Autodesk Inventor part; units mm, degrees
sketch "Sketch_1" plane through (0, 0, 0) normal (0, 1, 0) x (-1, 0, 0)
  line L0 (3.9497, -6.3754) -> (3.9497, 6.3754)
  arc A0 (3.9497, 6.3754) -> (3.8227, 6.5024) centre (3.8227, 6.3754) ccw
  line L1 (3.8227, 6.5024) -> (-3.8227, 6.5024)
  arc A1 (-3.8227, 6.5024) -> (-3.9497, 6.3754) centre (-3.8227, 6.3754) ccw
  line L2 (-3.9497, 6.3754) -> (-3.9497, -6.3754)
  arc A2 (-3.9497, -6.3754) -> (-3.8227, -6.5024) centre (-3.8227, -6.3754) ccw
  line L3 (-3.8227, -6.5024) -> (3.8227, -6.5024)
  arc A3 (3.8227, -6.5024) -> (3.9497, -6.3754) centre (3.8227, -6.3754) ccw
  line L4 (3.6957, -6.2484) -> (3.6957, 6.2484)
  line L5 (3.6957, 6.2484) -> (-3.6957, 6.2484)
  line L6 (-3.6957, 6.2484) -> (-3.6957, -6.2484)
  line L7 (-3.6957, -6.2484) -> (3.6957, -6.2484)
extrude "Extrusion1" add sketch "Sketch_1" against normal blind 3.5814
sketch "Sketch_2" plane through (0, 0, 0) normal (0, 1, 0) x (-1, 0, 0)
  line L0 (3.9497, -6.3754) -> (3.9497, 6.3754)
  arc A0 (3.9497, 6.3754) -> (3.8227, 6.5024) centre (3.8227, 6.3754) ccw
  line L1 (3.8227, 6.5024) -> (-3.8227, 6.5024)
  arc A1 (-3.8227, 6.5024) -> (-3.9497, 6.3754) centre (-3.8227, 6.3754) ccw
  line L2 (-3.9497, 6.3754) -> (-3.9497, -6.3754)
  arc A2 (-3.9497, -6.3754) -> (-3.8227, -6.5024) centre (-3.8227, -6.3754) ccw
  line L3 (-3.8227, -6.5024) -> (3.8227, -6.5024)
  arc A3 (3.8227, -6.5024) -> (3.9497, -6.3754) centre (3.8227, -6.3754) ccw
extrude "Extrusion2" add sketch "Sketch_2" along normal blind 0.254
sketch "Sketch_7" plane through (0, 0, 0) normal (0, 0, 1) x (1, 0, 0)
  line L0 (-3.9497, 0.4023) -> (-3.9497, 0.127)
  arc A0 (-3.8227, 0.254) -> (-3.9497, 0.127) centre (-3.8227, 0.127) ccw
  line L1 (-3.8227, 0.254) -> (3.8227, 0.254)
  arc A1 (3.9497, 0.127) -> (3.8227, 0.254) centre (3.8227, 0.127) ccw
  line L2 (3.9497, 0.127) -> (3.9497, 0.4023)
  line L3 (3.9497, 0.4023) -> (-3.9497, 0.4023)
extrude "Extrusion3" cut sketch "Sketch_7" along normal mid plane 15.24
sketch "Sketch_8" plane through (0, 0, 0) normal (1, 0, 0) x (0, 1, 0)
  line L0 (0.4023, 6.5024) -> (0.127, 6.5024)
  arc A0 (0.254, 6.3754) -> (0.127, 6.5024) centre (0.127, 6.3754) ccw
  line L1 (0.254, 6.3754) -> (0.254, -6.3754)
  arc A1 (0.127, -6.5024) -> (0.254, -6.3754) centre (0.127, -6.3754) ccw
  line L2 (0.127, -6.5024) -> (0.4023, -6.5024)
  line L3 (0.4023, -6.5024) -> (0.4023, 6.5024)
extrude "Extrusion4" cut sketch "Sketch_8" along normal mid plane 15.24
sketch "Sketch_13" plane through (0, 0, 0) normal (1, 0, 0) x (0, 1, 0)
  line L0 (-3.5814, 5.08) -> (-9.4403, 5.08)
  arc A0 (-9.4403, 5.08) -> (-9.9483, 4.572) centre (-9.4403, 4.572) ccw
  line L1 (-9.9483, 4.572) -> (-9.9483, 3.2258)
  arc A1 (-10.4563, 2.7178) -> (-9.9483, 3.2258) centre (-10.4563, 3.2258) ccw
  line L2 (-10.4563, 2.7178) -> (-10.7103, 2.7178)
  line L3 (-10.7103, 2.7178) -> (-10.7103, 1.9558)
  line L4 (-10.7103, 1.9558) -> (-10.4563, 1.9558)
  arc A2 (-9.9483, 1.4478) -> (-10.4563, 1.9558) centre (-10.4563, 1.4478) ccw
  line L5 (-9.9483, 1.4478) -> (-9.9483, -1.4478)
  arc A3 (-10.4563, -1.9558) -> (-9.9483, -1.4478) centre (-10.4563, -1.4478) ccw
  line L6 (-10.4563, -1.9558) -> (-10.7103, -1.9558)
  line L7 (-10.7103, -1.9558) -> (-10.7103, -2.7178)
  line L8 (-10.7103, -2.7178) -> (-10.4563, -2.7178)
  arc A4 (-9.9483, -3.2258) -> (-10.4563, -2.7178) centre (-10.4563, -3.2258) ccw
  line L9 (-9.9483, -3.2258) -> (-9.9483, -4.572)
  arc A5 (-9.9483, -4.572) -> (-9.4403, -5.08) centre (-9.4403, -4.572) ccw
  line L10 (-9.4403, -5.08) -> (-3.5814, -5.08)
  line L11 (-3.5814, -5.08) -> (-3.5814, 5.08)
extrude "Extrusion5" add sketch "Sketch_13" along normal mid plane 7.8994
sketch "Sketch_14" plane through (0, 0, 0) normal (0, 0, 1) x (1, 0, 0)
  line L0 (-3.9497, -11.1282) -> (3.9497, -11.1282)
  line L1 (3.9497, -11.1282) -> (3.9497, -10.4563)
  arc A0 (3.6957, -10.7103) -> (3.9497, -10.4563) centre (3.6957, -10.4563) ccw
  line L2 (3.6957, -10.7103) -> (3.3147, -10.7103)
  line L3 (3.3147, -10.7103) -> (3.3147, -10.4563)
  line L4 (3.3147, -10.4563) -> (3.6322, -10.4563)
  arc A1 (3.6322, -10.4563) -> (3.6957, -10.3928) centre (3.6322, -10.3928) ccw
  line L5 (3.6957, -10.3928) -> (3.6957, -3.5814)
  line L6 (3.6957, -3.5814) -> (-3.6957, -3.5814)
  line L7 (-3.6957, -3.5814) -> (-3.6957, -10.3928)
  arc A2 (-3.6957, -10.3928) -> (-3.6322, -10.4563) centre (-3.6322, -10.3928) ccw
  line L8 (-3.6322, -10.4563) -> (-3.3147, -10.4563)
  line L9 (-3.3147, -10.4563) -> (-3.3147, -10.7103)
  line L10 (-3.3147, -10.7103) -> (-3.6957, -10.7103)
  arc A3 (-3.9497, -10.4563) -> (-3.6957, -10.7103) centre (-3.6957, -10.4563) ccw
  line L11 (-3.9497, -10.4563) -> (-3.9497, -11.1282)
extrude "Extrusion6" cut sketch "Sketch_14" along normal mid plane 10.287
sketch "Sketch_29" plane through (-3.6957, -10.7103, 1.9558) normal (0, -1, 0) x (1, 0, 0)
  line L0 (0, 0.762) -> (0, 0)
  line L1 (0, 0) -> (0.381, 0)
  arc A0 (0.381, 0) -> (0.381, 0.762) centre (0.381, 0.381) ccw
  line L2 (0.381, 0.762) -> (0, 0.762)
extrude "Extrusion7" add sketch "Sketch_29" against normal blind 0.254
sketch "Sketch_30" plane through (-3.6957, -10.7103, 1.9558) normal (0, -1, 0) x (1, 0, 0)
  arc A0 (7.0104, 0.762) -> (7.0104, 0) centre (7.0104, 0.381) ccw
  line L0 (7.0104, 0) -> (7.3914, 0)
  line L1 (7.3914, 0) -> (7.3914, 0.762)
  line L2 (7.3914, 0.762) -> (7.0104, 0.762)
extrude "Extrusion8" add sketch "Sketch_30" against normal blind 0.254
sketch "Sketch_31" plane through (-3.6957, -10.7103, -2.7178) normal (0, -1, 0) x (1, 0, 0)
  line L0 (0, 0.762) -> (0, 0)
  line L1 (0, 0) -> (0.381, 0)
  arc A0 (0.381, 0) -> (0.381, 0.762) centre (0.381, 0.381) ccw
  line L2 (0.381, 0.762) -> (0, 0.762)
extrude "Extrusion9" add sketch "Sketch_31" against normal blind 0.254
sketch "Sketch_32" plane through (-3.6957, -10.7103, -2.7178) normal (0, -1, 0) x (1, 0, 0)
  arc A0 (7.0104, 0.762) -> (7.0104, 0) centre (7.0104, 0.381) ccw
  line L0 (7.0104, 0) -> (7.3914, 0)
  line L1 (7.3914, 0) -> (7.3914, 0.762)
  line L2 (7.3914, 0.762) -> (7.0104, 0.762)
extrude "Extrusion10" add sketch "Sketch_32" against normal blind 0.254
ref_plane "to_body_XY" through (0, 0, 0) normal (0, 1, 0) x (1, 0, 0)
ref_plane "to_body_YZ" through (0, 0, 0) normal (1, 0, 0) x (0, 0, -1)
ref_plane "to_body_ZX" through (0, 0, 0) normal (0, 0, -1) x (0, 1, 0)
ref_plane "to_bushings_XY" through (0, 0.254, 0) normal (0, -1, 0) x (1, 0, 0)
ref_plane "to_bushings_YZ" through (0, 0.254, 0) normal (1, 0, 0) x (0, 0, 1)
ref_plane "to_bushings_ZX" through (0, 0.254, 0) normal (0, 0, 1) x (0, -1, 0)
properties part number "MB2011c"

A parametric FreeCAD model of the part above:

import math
import FreeCAD as App
import Part
import Sketcher
from FreeCAD import Vector
Q = App.Units.Quantity


def add_polygon(sketch, points):
    """Adds a closed chain of lines whose ends are joined by coincident constraints."""
    first, n = sketch.GeometryCount, len(points)
    for a, b in zip(points, points[1:] + points[:1]):
        sketch.addGeometry(Part.LineSegment(App.Vector(*a, 0), App.Vector(*b, 0)), False)
    for i in range(n):
        sketch.addConstraint(Sketcher.Constraint("Coincident", first + i, 2, first + (i + 1) % n, 1))

doc = App.newDocument("Part")
body = doc.addObject("PartDesign::Body", "Body")

# Sketch on XZ plane
sketch1 = body.newObject("Sketcher::SketchObject", "Sketch")
sketch1.AttachmentSupport = (doc.getObject("XZ_Plane"), [""])
sketch1.MapMode = "FlatFace"
sketch1.addGeometry(Part.ArcOfCircle(Part.Circle(Vector(-3.82, -6.38, 0), Vector(0, 0, 1), 0.13), math.radians(180), math.radians(270)), False)  # 0
sketch1.addGeometry(Part.LineSegment(Vector(-3.95, -6.38, 0), Vector(-3.95, 6.38, 0)), False)  # 1
sketch1.addGeometry(Part.ArcOfCircle(Part.Circle(Vector(-3.82, 6.38, 0), Vector(0, 0, 1), 0.13), math.radians(90), math.radians(180)), False)  # 2
sketch1.addGeometry(Part.LineSegment(Vector(-3.82, 6.5, 0), Vector(3.82, 6.5, 0)), False)  # 3
sketch1.addGeometry(Part.ArcOfCircle(Part.Circle(Vector(3.82, 6.38, 0), Vector(0, 0, 1), 0.13), math.radians(0), math.radians(90)), False)  # 4
sketch1.addGeometry(Part.LineSegment(Vector(3.95, 6.38, 0), Vector(3.95, -6.38, 0)), False)  # 5
sketch1.addGeometry(Part.ArcOfCircle(Part.Circle(Vector(3.82, -6.38, 0), Vector(0, 0, 1), 0.13), math.radians(-90), math.radians(0)), False)  # 6
sketch1.addGeometry(Part.LineSegment(Vector(3.82, -6.5, 0), Vector(-3.82, -6.5, 0)), False)  # 7
add_polygon(sketch1, [(-3.7, 6.25), (-3.7, -6.25), (3.7, -6.25), (3.7, 6.25)])  # lines 8-11
sketch1.addConstraint([
    Sketcher.Constraint("Tangent", 0, 1, 1, 1),
    Sketcher.Constraint("Tangent", 1, 2, 2, 2),
    Sketcher.Constraint("Tangent", 2, 1, 3, 1),
    Sketcher.Constraint("Tangent", 3, 2, 4, 2),
    Sketcher.Constraint("Tangent", 4, 1, 5, 1),
    Sketcher.Constraint("Tangent", 5, 2, 6, 2),
    Sketcher.Constraint("Tangent", 6, 1, 7, 1),
    Sketcher.Constraint("Tangent", 7, 2, 0, 2),
    Sketcher.Constraint("Vertical", 1),
    Sketcher.Constraint("Horizontal", 3),
    Sketcher.Constraint("Vertical", 5),
    Sketcher.Constraint("Horizontal", 7),
    Sketcher.Constraint("Vertical", 8),
    Sketcher.Constraint("Horizontal", 9),
    Sketcher.Constraint("Vertical", 10),
    Sketcher.Constraint("Horizontal", 11),
    Sketcher.Constraint("Equal", 0, 2),
    Sketcher.Constraint("Equal", 2, 4),
    Sketcher.Constraint("Equal", 4, 6),
    Sketcher.Constraint("Symmetric", 0, 3, 4, 3, -1, 1),
    Sketcher.Constraint("Symmetric", 8, 2, 10, 2, -1, 1),
    Sketcher.Constraint("Radius", 0, Q("0.005 in")),
    Sketcher.Constraint("DistanceX", 3, 1, 3, 2, Q("0.301 in")),
    Sketcher.Constraint("DistanceX", 9, 1, 9, 2, Q("0.291 in")),
    Sketcher.Constraint("DistanceY", 1, 1, 1, 2, Q("0.502 in")),
    Sketcher.Constraint("DistanceY", 8, 2, 8, 1, Q("0.492 in")),
])
pad1 = body.newObject("PartDesign::Pad", "Pad")
pad1.Profile = sketch1
pad1.Length = Q("0.141 in")

# Sketch on XZ plane
sketch2 = body.newObject("Sketcher::SketchObject", "Sketch001")
sketch2.AttachmentSupport = (doc.getObject("XZ_Plane"), [""])
sketch2.MapMode = "FlatFace"
sketch2.addGeometry([
    Part.ArcOfCircle(Part.Circle(Vector(-3.82, -6.38, 0), Vector(0, 0, 1), 0.13), math.radians(180), math.radians(270)),  # 0
    Part.LineSegment(Vector(-3.95, -6.38, 0), Vector(-3.95, 6.38, 0)),  # 1
    Part.ArcOfCircle(Part.Circle(Vector(-3.82, 6.38, 0), Vector(0, 0, 1), 0.13), math.radians(90), math.radians(180)),  # 2
    Part.LineSegment(Vector(-3.82, 6.5, 0), Vector(3.82, 6.5, 0)),  # 3
    Part.ArcOfCircle(Part.Circle(Vector(3.82, 6.38, 0), Vector(0, 0, 1), 0.13), math.radians(0), math.radians(90)),  # 4
    Part.LineSegment(Vector(3.95, 6.38, 0), Vector(3.95, -6.38, 0)),  # 5
    Part.ArcOfCircle(Part.Circle(Vector(3.82, -6.38, 0), Vector(0, 0, 1), 0.13), math.radians(-90), math.radians(0)),  # 6
    Part.LineSegment(Vector(3.82, -6.5, 0), Vector(-3.82, -6.5, 0)),  # 7
], False)
sketch2.addConstraint([
    Sketcher.Constraint("Tangent", 0, 1, 1, 1),
    Sketcher.Constraint("Tangent", 1, 2, 2, 2),
    Sketcher.Constraint("Tangent", 2, 1, 3, 1),
    Sketcher.Constraint("Tangent", 3, 2, 4, 2),
    Sketcher.Constraint("Tangent", 4, 1, 5, 1),
    Sketcher.Constraint("Tangent", 5, 2, 6, 2),
    Sketcher.Constraint("Tangent", 6, 1, 7, 1),
    Sketcher.Constraint("Tangent", 7, 2, 0, 2),
    Sketcher.Constraint("Vertical", 1),
    Sketcher.Constraint("Horizontal", 3),
    Sketcher.Constraint("Vertical", 5),
    Sketcher.Constraint("Horizontal", 7),
    Sketcher.Constraint("Equal", 0, 2),
    Sketcher.Constraint("Equal", 2, 4),
    Sketcher.Constraint("Equal", 4, 6),
    Sketcher.Constraint("Symmetric", 0, 3, 4, 3, -1, 1),
    Sketcher.Constraint("Radius", 0, Q("0.005 in")),
    Sketcher.Constraint("DistanceX", 3, 1, 3, 2, Q("0.301 in")),
    Sketcher.Constraint("DistanceY", 1, 1, 1, 2, Q("0.502 in")),
])
pad2 = body.newObject("PartDesign::Pad", "Pad001")
pad2.Profile = sketch2
pad2.Length = Q("0.01 in")
pad2.Reversed = True

# Sketch on XY plane
sketch3 = body.newObject("Sketcher::SketchObject", "Sketch002")
sketch3.AttachmentSupport = (doc.getObject("XY_Plane"), [""])
sketch3.MapMode = "FlatFace"
sketch3.addGeometry([
    Part.LineSegment(Vector(3.95, 0.4, 0), Vector(-3.95, 0.4, 0)),  # 0
    Part.LineSegment(Vector(-3.95, 0.4, 0), Vector(-3.95, 0.13, 0)),  # 1
    Part.ArcOfCircle(Part.Circle(Vector(-3.82, 0.13, 0), Vector(0, 0, 1), 0.13), math.radians(90), math.radians(180)),  # 2
    Part.LineSegment(Vector(-3.82, 0.25, 0), Vector(3.82, 0.25, 0)),  # 3
    Part.ArcOfCircle(Part.Circle(Vector(3.82, 0.13, 0), Vector(0, 0, 1), 0.13), math.radians(0), math.radians(90)),  # 4
    Part.LineSegment(Vector(3.95, 0.13, 0), Vector(3.95, 0.4, 0)),  # 5
], False)
sketch3.addConstraint([
    Sketcher.Constraint("Coincident", 0, 2, 1, 1),
    Sketcher.Constraint("Tangent", 1, 2, 2, 2),
    Sketcher.Constraint("Tangent", 2, 1, 3, 1),
    Sketcher.Constraint("Tangent", 3, 2, 4, 2),
    Sketcher.Constraint("Tangent", 4, 1, 5, 1),
    Sketcher.Constraint("Coincident", 5, 2, 0, 1),
    Sketcher.Constraint("Horizontal", 0),
    Sketcher.Constraint("Vertical", 1),
    Sketcher.Constraint("Horizontal", 3),
    Sketcher.Constraint("Vertical", 5),
    Sketcher.Constraint("Equal", 2, 4),
    Sketcher.Constraint("Radius", 2, Q("0.005 in")),
    Sketcher.Constraint("DistanceX", 0, 2, 0, 1, Q("0.311 in")),
    Sketcher.Constraint("DistanceY", -1, 1, 2, 1, Q("0.01 in")),
    Sketcher.Constraint("DistanceY", 1, 2, 1, 1, Q("0.2753 mm")),
    Sketcher.Constraint("DistanceX", 2, 3, -1, 1, Q("0.1505 in")),
])
pocket1 = body.newObject("PartDesign::Pocket", "Pocket")
pocket1.Profile = sketch3
pocket1.Length = Q("0.6 in")
pocket1.Midplane = True

# Sketch on YZ plane
sketch4 = body.newObject("Sketcher::SketchObject", "Sketch003")
sketch4.AttachmentSupport = (doc.getObject("YZ_Plane"), [""])
sketch4.MapMode = "FlatFace"
sketch4.addGeometry([
    Part.LineSegment(Vector(0.4, -6.5, 0), Vector(0.4, 6.5, 0)),  # 0
    Part.LineSegment(Vector(0.4, 6.5, 0), Vector(0.13, 6.5, 0)),  # 1
    Part.ArcOfCircle(Part.Circle(Vector(0.13, 6.38, 0), Vector(0, 0, 1), 0.13), math.radians(0), math.radians(90)),  # 2
    Part.LineSegment(Vector(0.25, 6.38, 0), Vector(0.25, -6.38, 0)),  # 3
    Part.ArcOfCircle(Part.Circle(Vector(0.13, -6.38, 0), Vector(0, 0, 1), 0.13), math.radians(-90), math.radians(0)),  # 4
    Part.LineSegment(Vector(0.13, -6.5, 0), Vector(0.4, -6.5, 0)),  # 5
], False)
sketch4.addConstraint([
    Sketcher.Constraint("Coincident", 0, 2, 1, 1),
    Sketcher.Constraint("Tangent", 1, 2, 2, 2),
    Sketcher.Constraint("Tangent", 2, 1, 3, 1),
    Sketcher.Constraint("Tangent", 3, 2, 4, 2),
    Sketcher.Constraint("Tangent", 4, 1, 5, 1),
    Sketcher.Constraint("Coincident", 5, 2, 0, 1),
    Sketcher.Constraint("Vertical", 0),
    Sketcher.Constraint("Horizontal", 1),
    Sketcher.Constraint("Vertical", 3),
    Sketcher.Constraint("Horizontal", 5),
    Sketcher.Constraint("Equal", 2, 4),
    Sketcher.Constraint("Radius", 2, Q("0.005 in")),
    Sketcher.Constraint("DistanceY", 0, 1, 0, 2, Q("0.512 in")),
    Sketcher.Constraint("DistanceX", -1, 1, 2, 1, Q("0.01 in")),
    Sketcher.Constraint("DistanceY", -1, 1, 2, 3, Q("0.251 in")),
    Sketcher.Constraint("DistanceX", 1, 2, 1, 1, Q("0.2753 mm")),
])
pocket2 = body.newObject("PartDesign::Pocket", "Pocket001")
pocket2.Profile = sketch4
pocket2.Length = Q("0.6 in")
pocket2.Midplane = True

# Sketch on YZ plane
sketch5 = body.newObject("Sketcher::SketchObject", "Sketch004")
sketch5.AttachmentSupport = (doc.getObject("YZ_Plane"), [""])
sketch5.MapMode = "FlatFace"
sketch5.addGeometry([
    Part.LineSegment(Vector(-3.58, -5.08, 0), Vector(-3.58, 5.08, 0)),  # 0
    Part.LineSegment(Vector(-3.58, 5.08, 0), Vector(-9.44, 5.08, 0)),  # 1
    Part.ArcOfCircle(Part.Circle(Vector(-9.44, 4.57, 0), Vector(0, 0, 1), 0.51), math.radians(90), math.radians(180)),  # 2
    Part.LineSegment(Vector(-9.95, 4.57, 0), Vector(-9.95, 3.23, 0)),  # 3
    Part.ArcOfCircle(Part.Circle(Vector(-10.46, 3.23, 0), Vector(0, 0, 1), 0.51), math.radians(-90), math.radians(0)),  # 4
    Part.LineSegment(Vector(-10.46, 2.72, 0), Vector(-10.71, 2.72, 0)),  # 5
    Part.LineSegment(Vector(-10.71, 2.72, 0), Vector(-10.71, 1.96, 0)),  # 6
    Part.LineSegment(Vector(-10.71, 1.96, 0), Vector(-10.46, 1.96, 0)),  # 7
    Part.ArcOfCircle(Part.Circle(Vector(-10.46, 1.45, 0), Vector(0, 0, 1), 0.51), math.radians(0), math.radians(90)),  # 8
    Part.LineSegment(Vector(-9.95, 1.45, 0), Vector(-9.95, -1.45, 0)),  # 9
    Part.ArcOfCircle(Part.Circle(Vector(-10.46, -1.45, 0), Vector(0, 0, 1), 0.51), math.radians(-90), math.radians(0)),  # 10
    Part.LineSegment(Vector(-10.46, -1.96, 0), Vector(-10.71, -1.96, 0)),  # 11
    Part.LineSegment(Vector(-10.71, -1.96, 0), Vector(-10.71, -2.72, 0)),  # 12
    Part.LineSegment(Vector(-10.71, -2.72, 0), Vector(-10.46, -2.72, 0)),  # 13
    Part.ArcOfCircle(Part.Circle(Vector(-10.46, -3.23, 0), Vector(0, 0, 1), 0.51), math.radians(0), math.radians(90)),  # 14
    Part.LineSegment(Vector(-9.95, -3.23, 0), Vector(-9.95, -4.57, 0)),  # 15
    Part.ArcOfCircle(Part.Circle(Vector(-9.44, -4.57, 0), Vector(0, 0, 1), 0.51), math.radians(180), math.radians(270)),  # 16
    Part.LineSegment(Vector(-9.44, -5.08, 0), Vector(-3.58, -5.08, 0)),  # 17
], False)
sketch5.addConstraint([
    Sketcher.Constraint("Coincident", 0, 2, 1, 1),
    Sketcher.Constraint("Tangent", 1, 2, 2, 1),
    Sketcher.Constraint("Tangent", 2, 2, 3, 1),
    Sketcher.Constraint("Tangent", 3, 2, 4, 2),
    Sketcher.Constraint("Tangent", 4, 1, 5, 1),
    Sketcher.Constraint("Coincident", 5, 2, 6, 1),
    Sketcher.Constraint("Coincident", 6, 2, 7, 1),
    Sketcher.Constraint("Tangent", 7, 2, 8, 2),
    Sketcher.Constraint("Tangent", 8, 1, 9, 1),
    Sketcher.Constraint("Tangent", 9, 2, 10, 2),
    Sketcher.Constraint("Tangent", 10, 1, 11, 1),
    Sketcher.Constraint("Coincident", 11, 2, 12, 1),
    Sketcher.Constraint("Coincident", 12, 2, 13, 1),
    Sketcher.Constraint("Tangent", 13, 2, 14, 2),
    Sketcher.Constraint("Tangent", 14, 1, 15, 1),
    Sketcher.Constraint("Tangent", 15, 2, 16, 1),
    Sketcher.Constraint("Tangent", 16, 2, 17, 1),
    Sketcher.Constraint("Coincident", 17, 2, 0, 1),
    Sketcher.Constraint("Vertical", 0),
    Sketcher.Constraint("Horizontal", 1),
    Sketcher.Constraint("Vertical", 3),
    Sketcher.Constraint("Horizontal", 5),
    Sketcher.Constraint("Vertical", 6),
    Sketcher.Constraint("Horizontal", 7),
    Sketcher.Constraint("Vertical", 9),
    Sketcher.Constraint("Horizontal", 11),
    Sketcher.Constraint("Vertical", 12),
    Sketcher.Constraint("Horizontal", 13),
    Sketcher.Constraint("Vertical", 15),
    Sketcher.Constraint("Horizontal", 17),
    Sketcher.Constraint("Equal", 2, 4),
    Sketcher.Constraint("Equal", 4, 8),
    Sketcher.Constraint("Equal", 8, 10),
    Sketcher.Constraint("Equal", 10, 14),
    Sketcher.Constraint("Equal", 14, 16),
    Sketcher.Constraint("Symmetric", 4, 3, 14, 3, -1),
    Sketcher.Constraint("Symmetric", 6, 2, 11, 2, -1),
    Sketcher.Constraint("Vertical", 4, 3, 8, 3),
    Sketcher.Constraint("Equal", 3, 15),
    Sketcher.Constraint("Radius", 2, Q("0.02 in")),
    Sketcher.Constraint("DistanceY", 0, 1, 0, 2, Q("0.4 in")),
    Sketcher.Constraint("DistanceX", 5, 2, 5, 1, Q("0.01 in")),
    Sketcher.Constraint("DistanceY", 6, 2, 6, 1, Q("0.03 in")),
    Sketcher.Constraint("DistanceY", 3, 2, 3, 1, Q("0.053 in")),
    Sketcher.Constraint("DistanceX", 0, 2, -1, 1, Q("0.141 in")),
    Sketcher.Constraint("DistanceX", 1, 2, 1, 1, Q("5.859 mm")),
])
pad3 = body.newObject("PartDesign::Pad", "Pad002")
pad3.Profile = sketch5
pad3.Length = Q("0.311 in")
pad3.Midplane = True

# Sketch on XY plane
sketch6 = body.newObject("Sketcher::SketchObject", "Sketch005")
sketch6.AttachmentSupport = (doc.getObject("XY_Plane"), [""])
sketch6.MapMode = "FlatFace"
sketch6.addGeometry([
    Part.LineSegment(Vector(-3.95, -10.46, 0), Vector(-3.95, -11.13, 0)),  # 0
    Part.LineSegment(Vector(-3.95, -11.13, 0), Vector(3.95, -11.13, 0)),  # 1
    Part.LineSegment(Vector(3.95, -11.13, 0), Vector(3.95, -10.46, 0)),  # 2
    Part.ArcOfCircle(Part.Circle(Vector(3.7, -10.46, 0), Vector(0, 0, 1), 0.25), math.radians(-90), math.radians(0)),  # 3
    Part.LineSegment(Vector(3.7, -10.71, 0), Vector(3.31, -10.71, 0)),  # 4
    Part.LineSegment(Vector(3.31, -10.71, 0), Vector(3.31, -10.46, 0)),  # 5
    Part.LineSegment(Vector(3.31, -10.46, 0), Vector(3.63, -10.46, 0)),  # 6
    Part.ArcOfCircle(Part.Circle(Vector(3.63, -10.39, 0), Vector(0, 0, 1), 0.06), math.radians(-90), math.radians(0)),  # 7
    Part.LineSegment(Vector(3.7, -10.39, 0), Vector(3.7, -3.58, 0)),  # 8
    Part.LineSegment(Vector(3.7, -3.58, 0), Vector(-3.7, -3.58, 0)),  # 9
    Part.LineSegment(Vector(-3.7, -3.58, 0), Vector(-3.7, -10.39, 0)),  # 10
    Part.ArcOfCircle(Part.Circle(Vector(-3.63, -10.39, 0), Vector(0, 0, 1), 0.06), math.radians(180), math.radians(270)),  # 11
    Part.LineSegment(Vector(-3.63, -10.46, 0), Vector(-3.31, -10.46, 0)),  # 12
    Part.LineSegment(Vector(-3.31, -10.46, 0), Vector(-3.31, -10.71, 0)),  # 13
    Part.LineSegment(Vector(-3.31, -10.71, 0), Vector(-3.7, -10.71, 0)),  # 14
    Part.ArcOfCircle(Part.Circle(Vector(-3.7, -10.46, 0), Vector(0, 0, 1), 0.25), math.radians(180), math.radians(270)),  # 15
], False)
sketch6.addConstraint([
    Sketcher.Constraint("Coincident", 0, 2, 1, 1),
    Sketcher.Constraint("Coincident", 1, 2, 2, 1),
    Sketcher.Constraint("Tangent", 2, 2, 3, 2),
    Sketcher.Constraint("Tangent", 3, 1, 4, 1),
    Sketcher.Constraint("Coincident", 4, 2, 5, 1),
    Sketcher.Constraint("Coincident", 5, 2, 6, 1),
    Sketcher.Constraint("Tangent", 6, 2, 7, 1),
    Sketcher.Constraint("Tangent", 7, 2, 8, 1),
    Sketcher.Constraint("Coincident", 8, 2, 9, 1),
    Sketcher.Constraint("Coincident", 9, 2, 10, 1),
    Sketcher.Constraint("Tangent", 10, 2, 11, 1),
    Sketcher.Constraint("Tangent", 11, 2, 12, 1),
    Sketcher.Constraint("Coincident", 12, 2, 13, 1),
    Sketcher.Constraint("Coincident", 13, 2, 14, 1),
    Sketcher.Constraint("Tangent", 14, 2, 15, 2),
    Sketcher.Constraint("Tangent", 15, 1, 0, 1),
    Sketcher.Constraint("Vertical", 0),
    Sketcher.Constraint("Horizontal", 1),
    Sketcher.Constraint("Vertical", 2),
    Sketcher.Constraint("Horizontal", 4),
    Sketcher.Constraint("Vertical", 5),
    Sketcher.Constraint("Horizontal", 6),
    Sketcher.Constraint("Vertical", 8),
    Sketcher.Constraint("Horizontal", 9),
    Sketcher.Constraint("Vertical", 10),
    Sketcher.Constraint("Horizontal", 12),
    Sketcher.Constraint("Vertical", 13),
    Sketcher.Constraint("Horizontal", 14),
    Sketcher.Constraint("Equal", 7, 11),
    Sketcher.Constraint("Equal", 3, 15),
    Sketcher.Constraint("Symmetric", 7, 3, 11, 3, -2),
    Sketcher.Constraint("Symmetric", 3, 3, 15, 3, -2),
    Sketcher.Constraint("Horizontal", 2, 2, 5, 2),
    Sketcher.Constraint("Vertical", 3, 1, 7, 2),
    Sketcher.Constraint("Equal", 6, 12),
    Sketcher.Constraint("Radius", 3, Q("0.01 in")),
    Sketcher.Constraint("Radius", 7, Q("0.0025 in")),
    Sketcher.Constraint("DistanceX", 1, 1, 1, 2, Q("0.311 in")),
    Sketcher.Constraint("DistanceX", 4, 2, 4, 1, Q("0.015 in")),
    Sketcher.Constraint("DistanceY", 8, 2, -1, 1, Q("0.141 in")),
    Sketcher.Constraint("DistanceY", 0, 2, 0, 1, Q("0.672 mm")),
    Sketcher.Constraint("DistanceY", 8, 1, 8, 2, Q("6.8114 mm")),
])
pocket3 = body.newObject("PartDesign::Pocket", "Pocket002")
pocket3.Profile = sketch6
pocket3.Length = Q("0.405 in")
pocket3.Midplane = True

# Sketch on XZ plane
sketch7 = body.newObject("Sketcher::SketchObject", "Sketch006")
sketch7.AttachmentSupport = (doc.getObject("XZ_Plane"), [""])
sketch7.MapMode = "FlatFace"
sketch7.AttachmentOffset = App.Placement(Vector(0, 0, 10.7103), App.Rotation())
sketch7.addGeometry([
    Part.LineSegment(Vector(-3.31, 2.72, 0), Vector(-3.7, 2.72, 0)),
    Part.LineSegment(Vector(-3.7, 2.72, 0), Vector(-3.7, 1.96, 0)),
    Part.LineSegment(Vector(-3.7, 1.96, 0), Vector(-3.31, 1.96, 0)),
    Part.ArcOfCircle(Part.Circle(Vector(-3.31, 2.34, 0), Vector(0, 0, 1), 0.38), math.radians(-90), math.radians(90)),
], False)
sketch7.addConstraint([
    Sketcher.Constraint("Coincident", 0, 2, 1, 1),
    Sketcher.Constraint("Coincident", 1, 2, 2, 1),
    Sketcher.Constraint("Tangent", 2, 2, 3, 1),
    Sketcher.Constraint("Tangent", 3, 2, 0, 1),
    Sketcher.Constraint("Horizontal", 0),
    Sketcher.Constraint("Vertical", 1),
    Sketcher.Constraint("Horizontal", 2),
    Sketcher.Constraint("Radius", 3, Q("0.015 in")),
    Sketcher.Constraint("DistanceX", 0, 2, 0, 1, Q("0.015 in")),
    Sketcher.Constraint("DistanceY", -1, 1, 3, 3, Q("0.092 in")),
    Sketcher.Constraint("DistanceX", 3, 3, -1, 1, Q("0.1305 in")),
])
pad4 = body.newObject("PartDesign::Pad", "Pad003")
pad4.Profile = sketch7
pad4.Length = Q("0.01 in")
pad4.Reversed = True

# Sketch on XZ plane
sketch8 = body.newObject("Sketcher::SketchObject", "Sketch007")
sketch8.AttachmentSupport = (doc.getObject("XZ_Plane"), [""])
sketch8.MapMode = "FlatFace"
sketch8.AttachmentOffset = App.Placement(Vector(0, 0, 10.7103), App.Rotation())
sketch8.addGeometry([
    Part.LineSegment(Vector(3.7, 2.72, 0), Vector(3.31, 2.72, 0)),
    Part.ArcOfCircle(Part.Circle(Vector(3.31, 2.34, 0), Vector(0, 0, 1), 0.38), math.radians(90), math.radians(270)),
    Part.LineSegment(Vector(3.31, 1.96, 0), Vector(3.7, 1.96, 0)),
    Part.LineSegment(Vector(3.7, 1.96, 0), Vector(3.7, 2.72, 0)),
], False)
sketch8.addConstraint([
    Sketcher.Constraint("Tangent", 0, 2, 1, 1),
    Sketcher.Constraint("Tangent", 1, 2, 2, 1),
    Sketcher.Constraint("Coincident", 2, 2, 3, 1),
    Sketcher.Constraint("Coincident", 3, 2, 0, 1),
    Sketcher.Constraint("Horizontal", 0),
    Sketcher.Constraint("Horizontal", 2),
    Sketcher.Constraint("Vertical", 3),
    Sketcher.Constraint("Radius", 1, Q("0.015 in")),
    Sketcher.Constraint("DistanceX", 0, 2, 0, 1, Q("0.015 in")),
    Sketcher.Constraint("DistanceY", -1, 1, 1, 3, Q("0.092 in")),
    Sketcher.Constraint("DistanceX", -1, 1, 1, 3, Q("0.1305 in")),
])
pad5 = body.newObject("PartDesign::Pad", "Pad004")
pad5.Profile = sketch8
pad5.Length = Q("0.01 in")
pad5.Reversed = True

# Sketch on XZ plane
sketch9 = body.newObject("Sketcher::SketchObject", "Sketch008")
sketch9.AttachmentSupport = (doc.getObject("XZ_Plane"), [""])
sketch9.MapMode = "FlatFace"
sketch9.AttachmentOffset = App.Placement(Vector(0, 0, 10.7103), App.Rotation())
sketch9.addGeometry([
    Part.LineSegment(Vector(-3.31, -1.96, 0), Vector(-3.7, -1.96, 0)),
    Part.LineSegment(Vector(-3.7, -1.96, 0), Vector(-3.7, -2.72, 0)),
    Part.LineSegment(Vector(-3.7, -2.72, 0), Vector(-3.31, -2.72, 0)),
    Part.ArcOfCircle(Part.Circle(Vector(-3.31, -2.34, 0), Vector(0, 0, 1), 0.38), math.radians(-90), math.radians(90)),
], False)
sketch9.addConstraint([
    Sketcher.Constraint("Coincident", 0, 2, 1, 1),
    Sketcher.Constraint("Coincident", 1, 2, 2, 1),
    Sketcher.Constraint("Tangent", 2, 2, 3, 1),
    Sketcher.Constraint("Tangent", 3, 2, 0, 1),
    Sketcher.Constraint("Horizontal", 0),
    Sketcher.Constraint("Vertical", 1),
    Sketcher.Constraint("Horizontal", 2),
    Sketcher.Constraint("Radius", 3, Q("0.015 in")),
    Sketcher.Constraint("DistanceX", 0, 2, 0, 1, Q("0.015 in")),
    Sketcher.Constraint("DistanceY", 3, 3, -1, 1, Q("0.092 in")),
    Sketcher.Constraint("DistanceX", 3, 3, -1, 1, Q("0.1305 in")),
])
pad6 = body.newObject("PartDesign::Pad", "Pad005")
pad6.Profile = sketch9
pad6.Length = Q("0.01 in")
pad6.Reversed = True

# Sketch on XZ plane
sketch10 = body.newObject("Sketcher::SketchObject", "Sketch009")
sketch10.AttachmentSupport = (doc.getObject("XZ_Plane"), [""])
sketch10.MapMode = "FlatFace"
sketch10.AttachmentOffset = App.Placement(Vector(0, 0, 10.7103), App.Rotation())
sketch10.addGeometry([
    Part.LineSegment(Vector(3.7, -1.96, 0), Vector(3.31, -1.96, 0)),
    Part.ArcOfCircle(Part.Circle(Vector(3.31, -2.34, 0), Vector(0, 0, 1), 0.38), math.radians(90), math.radians(270)),
    Part.LineSegment(Vector(3.31, -2.72, 0), Vector(3.7, -2.72, 0)),
    Part.LineSegment(Vector(3.7, -2.72, 0), Vector(3.7, -1.96, 0)),
], False)
sketch10.addConstraint([
    Sketcher.Constraint("Tangent", 0, 2, 1, 1),
    Sketcher.Constraint("Tangent", 1, 2, 2, 1),
    Sketcher.Constraint("Coincident", 2, 2, 3, 1),
    Sketcher.Constraint("Coincident", 3, 2, 0, 1),
    Sketcher.Constraint("Horizontal", 0),
    Sketcher.Constraint("Horizontal", 2),
    Sketcher.Constraint("Vertical", 3),
    Sketcher.Constraint("Radius", 1, Q("0.015 in")),
    Sketcher.Constraint("DistanceX", 0, 2, 0, 1, Q("0.015 in")),
    Sketcher.Constraint("DistanceY", 1, 3, -1, 1, Q("0.092 in")),
    Sketcher.Constraint("DistanceX", -1, 1, 1, 3, Q("0.1305 in")),
])
pad7 = body.newObject("PartDesign::Pad", "Pad006")
pad7.Profile = sketch10
pad7.Length = Q("0.01 in")
pad7.Reversed = True

doc.recompute()
